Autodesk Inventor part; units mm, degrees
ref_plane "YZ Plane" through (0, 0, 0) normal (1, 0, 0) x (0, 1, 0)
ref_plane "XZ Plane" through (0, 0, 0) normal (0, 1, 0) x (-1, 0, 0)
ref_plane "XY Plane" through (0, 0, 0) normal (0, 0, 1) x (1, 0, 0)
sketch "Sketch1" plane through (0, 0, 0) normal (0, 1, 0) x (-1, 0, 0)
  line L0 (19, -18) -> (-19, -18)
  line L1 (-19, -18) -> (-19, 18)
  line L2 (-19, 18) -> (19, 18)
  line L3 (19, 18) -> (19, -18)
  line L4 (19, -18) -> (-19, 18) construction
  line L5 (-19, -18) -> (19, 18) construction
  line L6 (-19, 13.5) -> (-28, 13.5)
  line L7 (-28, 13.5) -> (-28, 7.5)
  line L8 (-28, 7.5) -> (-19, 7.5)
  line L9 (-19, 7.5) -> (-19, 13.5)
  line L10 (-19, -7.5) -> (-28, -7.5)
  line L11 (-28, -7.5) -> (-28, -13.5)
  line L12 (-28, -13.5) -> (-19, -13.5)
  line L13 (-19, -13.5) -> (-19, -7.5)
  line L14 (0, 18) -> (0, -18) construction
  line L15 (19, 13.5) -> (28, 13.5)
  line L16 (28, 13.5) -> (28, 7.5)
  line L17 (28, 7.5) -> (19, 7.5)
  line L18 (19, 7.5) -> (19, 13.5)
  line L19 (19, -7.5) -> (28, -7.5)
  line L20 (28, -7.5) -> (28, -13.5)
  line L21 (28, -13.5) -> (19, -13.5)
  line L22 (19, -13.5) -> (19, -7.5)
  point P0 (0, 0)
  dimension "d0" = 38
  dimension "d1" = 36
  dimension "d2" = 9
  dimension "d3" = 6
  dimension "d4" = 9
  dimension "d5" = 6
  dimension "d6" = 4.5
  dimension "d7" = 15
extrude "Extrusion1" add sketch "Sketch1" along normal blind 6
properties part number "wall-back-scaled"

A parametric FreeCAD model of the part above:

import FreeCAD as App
import Part
import Sketcher
from FreeCAD import Vector


def add_polygon(sketch, points):
    """Adds a closed chain of lines whose ends are joined by coincident constraints."""
    first, n = sketch.GeometryCount, len(points)
    for a, b in zip(points, points[1:] + points[:1]):
        sketch.addGeometry(Part.LineSegment(App.Vector(*a, 0), App.Vector(*b, 0)), False)
    for i in range(n):
        sketch.addConstraint(Sketcher.Constraint("Coincident", first + i, 2, first + (i + 1) % n, 1))

doc = App.newDocument("Part")
body = doc.addObject("PartDesign::Body", "Body")

sketch1 = body.newObject("Sketcher::SketchObject", "Sketch")
sketch1.AttachmentSupport = (doc.getObject("XZ_Plane"), [""])
sketch1.MapMode = "FlatFace"
add_polygon(sketch1, [(19, -18), (-19, -18), (-19, -13.5), (-28, -13.5), (-28, -7.5), (-19, -7.5), (-19, 7.5), (-28, 7.5), (-28, 13.5), (-19, 13.5), (-19, 18), (19, 18), (19, 13.5), (28, 13.5), (28, 7.5), (19, 7.5), (19, -7.5), (28, -7.5), (28, -13.5), (19, -13.5)])
sketch1.addConstraint([
    Sketcher.Constraint("Horizontal", 0),
    Sketcher.Constraint("Vertical", 1),
    Sketcher.Constraint("Horizontal", 2),
    Sketcher.Constraint("Vertical", 3),
    Sketcher.Constraint("Horizontal", 4),
    Sketcher.Constraint("Vertical", 5),
    Sketcher.Constraint("Horizontal", 6),
    Sketcher.Constraint("Vertical", 7),
    Sketcher.Constraint("Horizontal", 8),
    Sketcher.Constraint("Vertical", 9),
    Sketcher.Constraint("Horizontal", 10),
    Sketcher.Constraint("Vertical", 11),
    Sketcher.Constraint("Horizontal", 12),
    Sketcher.Constraint("Vertical", 13),
    Sketcher.Constraint("Horizontal", 14),
    Sketcher.Constraint("Vertical", 15),
    Sketcher.Constraint("Horizontal", 16),
    Sketcher.Constraint("Vertical", 17),
    Sketcher.Constraint("Horizontal", 18),
    Sketcher.Constraint("Vertical", 19),
    Sketcher.Constraint("Symmetric", 0, 2, 10, 2, -1, 1),
    Sketcher.Constraint("Symmetric", 2, 2, 12, 2, -1, 1),
    Sketcher.Constraint("Symmetric", 4, 2, 14, 2, -1, 1),
    Sketcher.Constraint("Symmetric", 6, 2, 16, 2, -1, 1),
    Sketcher.Constraint("Symmetric", 8, 2, 18, 2, -1, 1),
    Sketcher.Constraint("Symmetric", 8, 2, 11, 2, -2),
    Sketcher.Constraint("Symmetric", 6, 2, 13, 2, -2),
    Sketcher.Constraint("Vertical", 1, 2, 4, 2),
    Sketcher.Constraint("DistanceX", 0, 2, 0, 1, 38.0),
    Sketcher.Constraint("DistanceX", 2, 2, 2, 1, 9.0),
    Sketcher.Constraint("DistanceY", 3, 1, 3, 2, 6.0),
    Sketcher.Constraint("DistanceY", 5, 1, 5, 2, 15.0),
    Sketcher.Constraint("DistanceY", 1, 1, 1, 2, 4.5),
])
pad1 = body.newObject("PartDesign::Pad", "Pad")
pad1.Profile = sketch1
pad1.Length = 6
pad1.Reversed = True

doc.recompute()
